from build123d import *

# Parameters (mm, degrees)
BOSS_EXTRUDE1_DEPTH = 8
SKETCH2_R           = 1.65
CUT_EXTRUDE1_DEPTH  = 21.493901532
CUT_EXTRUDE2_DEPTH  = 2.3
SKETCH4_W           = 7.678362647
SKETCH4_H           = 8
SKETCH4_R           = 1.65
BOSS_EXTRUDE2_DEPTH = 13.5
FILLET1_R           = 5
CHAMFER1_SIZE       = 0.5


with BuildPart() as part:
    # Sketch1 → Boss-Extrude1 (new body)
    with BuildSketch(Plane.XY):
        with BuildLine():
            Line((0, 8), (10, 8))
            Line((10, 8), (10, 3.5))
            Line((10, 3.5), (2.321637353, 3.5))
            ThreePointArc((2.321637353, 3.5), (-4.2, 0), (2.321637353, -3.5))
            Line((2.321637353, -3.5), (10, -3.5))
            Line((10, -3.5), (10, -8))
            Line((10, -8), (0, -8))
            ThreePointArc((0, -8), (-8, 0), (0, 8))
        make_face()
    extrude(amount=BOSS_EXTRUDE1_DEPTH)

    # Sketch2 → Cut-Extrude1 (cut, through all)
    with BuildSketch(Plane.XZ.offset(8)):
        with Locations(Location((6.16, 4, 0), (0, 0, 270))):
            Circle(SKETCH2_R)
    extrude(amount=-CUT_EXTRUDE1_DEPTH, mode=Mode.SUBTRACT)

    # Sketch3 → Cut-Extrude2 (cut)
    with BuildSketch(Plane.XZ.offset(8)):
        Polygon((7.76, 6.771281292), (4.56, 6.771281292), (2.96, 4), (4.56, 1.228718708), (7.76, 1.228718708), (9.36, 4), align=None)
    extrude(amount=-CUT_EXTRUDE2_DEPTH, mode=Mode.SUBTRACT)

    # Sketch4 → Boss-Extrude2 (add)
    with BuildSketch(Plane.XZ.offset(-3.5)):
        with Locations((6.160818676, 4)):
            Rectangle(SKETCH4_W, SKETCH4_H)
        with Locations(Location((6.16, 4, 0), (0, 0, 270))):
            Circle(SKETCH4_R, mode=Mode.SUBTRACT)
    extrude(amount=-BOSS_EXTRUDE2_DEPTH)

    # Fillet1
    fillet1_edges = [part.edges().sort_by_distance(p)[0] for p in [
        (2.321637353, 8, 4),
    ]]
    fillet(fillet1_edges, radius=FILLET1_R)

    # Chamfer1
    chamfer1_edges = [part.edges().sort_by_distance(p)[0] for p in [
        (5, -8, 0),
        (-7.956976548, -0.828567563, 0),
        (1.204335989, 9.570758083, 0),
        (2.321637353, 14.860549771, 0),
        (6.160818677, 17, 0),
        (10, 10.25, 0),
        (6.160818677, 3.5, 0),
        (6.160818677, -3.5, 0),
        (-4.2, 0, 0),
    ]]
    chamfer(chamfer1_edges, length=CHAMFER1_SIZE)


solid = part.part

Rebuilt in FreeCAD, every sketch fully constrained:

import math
import FreeCAD as App
import Part
import Sketcher

V = App.Vector
Q = App.Units.Quantity


def edges_at(feature, points):
    """Names of the edges that pass closest to the given points."""
    edges = feature.Shape.Edges
    near = lambda p: min(range(len(edges)), key=lambda i: edges[i].distToShape(Part.Vertex(*p))[0])
    return sorted({f"Edge{near(p) + 1}" for p in points})


def add_polygon(sketch, points):
    """Adds a closed chain of lines whose ends are joined by coincident constraints."""
    first, n = sketch.GeometryCount, len(points)
    for a, b in zip(points, points[1:] + points[:1]):
        sketch.addGeometry(Part.LineSegment(App.Vector(*a, 0), App.Vector(*b, 0)), False)
    for i in range(n):
        sketch.addConstraint(Sketcher.Constraint("Coincident", first + i, 2, first + (i + 1) % n, 1))

doc = App.newDocument("Part")
body = doc.addObject("PartDesign::Body", "Body")

sketch1 = body.newObject("Sketcher::SketchObject", "Sketch")
sketch1.AttachmentSupport = (doc.getObject("XY_Plane"), [""])
sketch1.MapMode = "FlatFace"
sketch1.addGeometry([
    Part.LineSegment(V(10, 8, 0), V(0, 8, 0)),
    Part.ArcOfCircle(Part.Circle(V(0, 0, 0), V(0, 0, 1), 8), math.radians(90), math.radians(270)),
    Part.LineSegment(V(0, -8, 0), V(10, -8, 0)),
    Part.LineSegment(V(10, -8, 0), V(10, -3.5, 0)),
    Part.LineSegment(V(10, -3.5, 0), V(2.3, -3.5, 0)),
    Part.ArcOfCircle(Part.Circle(V(0, 0, 0), V(0, 0, 1), 4.2), math.radians(56), math.radians(304)),
    Part.LineSegment(V(2.3, 3.5, 0), V(10, 3.5, 0)),
    Part.LineSegment(V(10, 3.5, 0), V(10, 8, 0)),
], False)
sketch1.addConstraint([
    Sketcher.Constraint("Tangent", 0, 2, 1, 1),
    Sketcher.Constraint("Tangent", 1, 2, 2, 1),
    Sketcher.Constraint("Coincident", 2, 2, 3, 1),
    Sketcher.Constraint("Coincident", 3, 2, 4, 1),
    Sketcher.Constraint("Coincident", 4, 2, 5, 2),
    Sketcher.Constraint("Coincident", 5, 1, 6, 1),
    Sketcher.Constraint("Coincident", 6, 2, 7, 1),
    Sketcher.Constraint("Coincident", 7, 2, 0, 1),
    Sketcher.Constraint("Horizontal", 0),
    Sketcher.Constraint("Horizontal", 2),
    Sketcher.Constraint("Vertical", 3),
    Sketcher.Constraint("Horizontal", 4),
    Sketcher.Constraint("Horizontal", 6),
    Sketcher.Constraint("Vertical", 7),
    Sketcher.Constraint("Coincident", 1, 3, -1, 1),
    Sketcher.Constraint("Coincident", 5, 3, -1, 1),
    Sketcher.Constraint("Symmetric", 3, 2, 6, 2, -1),
    Sketcher.Constraint("Radius", 1, 8.0),
    Sketcher.Constraint("Radius", 5, 4.2),
    Sketcher.Constraint("DistanceX", 0, 2, 0, 1, 10.0),
    Sketcher.Constraint("DistanceY", 3, 1, 3, 2, 4.5),
])
pad1 = body.newObject("PartDesign::Pad", "Pad")
pad1.Profile = sketch1
pad1.Length = 8

sketch2 = body.newObject("Sketcher::SketchObject", "Sketch001")
sketch2.AttachmentSupport = (doc.getObject("XZ_Plane"), [""])
sketch2.MapMode = "FlatFace"
sketch2.AttachmentOffset = App.Placement(V(0, 0, 8), App.Rotation())
sketch2.addGeometry(Part.Circle(V(6.2, 4, 0), V(0, 0, 1), 1.6), False)
sketch2.addConstraint([
    Sketcher.Constraint("Diameter", 0, 3.3),
    Sketcher.Constraint("DistanceY", -1, 1, 0, 3, 4.0),
    Sketcher.Constraint("DistanceX", -1, 1, 0, 3, 6.16),
])
pocket1 = body.newObject("PartDesign::Pocket", "Pocket")
pocket1.Profile = sketch2
pocket1.Type = "ThroughAll"

sketch3 = body.newObject("Sketcher::SketchObject", "Sketch002")
sketch3.AttachmentSupport = (doc.getObject("XZ_Plane"), [""])
sketch3.MapMode = "FlatFace"
sketch3.AttachmentOffset = App.Placement(V(0, 0, 8), App.Rotation())
add_polygon(sketch3, [(7.8, 6.8), (4.6, 6.8), (3, 4), (4.6, 1.2), (7.8, 1.2), (9.4, 4)])
sketch3.addConstraint([
    Sketcher.Constraint("Horizontal", 0),
    Sketcher.Constraint("Horizontal", 3),
    Sketcher.Constraint("Parallel", 1, 4),
    Sketcher.Constraint("Parallel", 2, 5),
    Sketcher.Constraint("Horizontal", 1, 2, 4, 2),
    Sketcher.Constraint("Vertical", 0, 2, 2, 2),
    Sketcher.Constraint("Vertical", 3, 2, 5, 2),
    Sketcher.Constraint("Angle", 1, Q("-120 deg")),
    Sketcher.Constraint("DistanceX", 0, 2, 0, 1, 3.2),
    Sketcher.Constraint("DistanceY", -1, 1, 1, 2, 4.0),
    Sketcher.Constraint("Distance", 1, 3.2),
    Sketcher.Constraint("DistanceX", -1, 1, 0, 2, 4.56),
])
pocket2 = body.newObject("PartDesign::Pocket", "Pocket001")
pocket2.Profile = sketch3
pocket2.Length = 2.3

sketch4 = body.newObject("Sketcher::SketchObject", "Sketch003")
sketch4.AttachmentSupport = (doc.getObject("XZ_Plane"), [""])
sketch4.MapMode = "FlatFace"
sketch4.AttachmentOffset = App.Placement(V(0, 0, -3.5), App.Rotation())
add_polygon(sketch4, [(2.3, 8), (2.3, 0), (10, 0), (10, 8)])
sketch4.addGeometry(Part.Circle(V(6.2, 4, 0), V(0, 0, 1), 1.6), False)
sketch4.addConstraint([
    Sketcher.Constraint("Vertical", 0),
    Sketcher.Constraint("Horizontal", 1),
    Sketcher.Constraint("Vertical", 2),
    Sketcher.Constraint("Horizontal", 3),
    Sketcher.Constraint("PointOnObject", 0, 2, -1),
    Sketcher.Constraint("Diameter", 4, 3.3),
    Sketcher.Constraint("DistanceY", 0, 2, 0, 1, 8.0),
    Sketcher.Constraint("DistanceY", -1, 1, 4, 3, 4.0),
    Sketcher.Constraint("DistanceX", -1, 1, 1, 2, 10.0),
    Sketcher.Constraint("DistanceX", -1, 1, 4, 3, 6.16),
    Sketcher.Constraint("DistanceX", 1, 1, 1, 2, 7.678363),
])
pad2 = body.newObject("PartDesign::Pad", "Pad001")
pad2.Profile = sketch4
pad2.Length = 13.5
pad2.Reversed = True
doc.recompute()

fillet = body.newObject("PartDesign::Fillet", "Fillet")
fillet.Base = (pad2, edges_at(pad2, [(2.322, 8, 4)]))
fillet.Radius = 5
doc.recompute()

chamfer = body.newObject("PartDesign::Chamfer", "Chamfer")
chamfer.Base = (fillet, edges_at(fillet, [
    (5, -8, 0),
    (-7.957, -0.829, 0),
    (1.204, 9.571, 0),
    (2.322, 14.861, 0),
    (6.161, 17, 0),
    (10, 12.5, 0),
    (6.161, 3.5, 0),
    (6.161, -3.5, 0),
    (-4.2, 0, 0),
]))
chamfer.Size = 0.5

doc.recompute()
